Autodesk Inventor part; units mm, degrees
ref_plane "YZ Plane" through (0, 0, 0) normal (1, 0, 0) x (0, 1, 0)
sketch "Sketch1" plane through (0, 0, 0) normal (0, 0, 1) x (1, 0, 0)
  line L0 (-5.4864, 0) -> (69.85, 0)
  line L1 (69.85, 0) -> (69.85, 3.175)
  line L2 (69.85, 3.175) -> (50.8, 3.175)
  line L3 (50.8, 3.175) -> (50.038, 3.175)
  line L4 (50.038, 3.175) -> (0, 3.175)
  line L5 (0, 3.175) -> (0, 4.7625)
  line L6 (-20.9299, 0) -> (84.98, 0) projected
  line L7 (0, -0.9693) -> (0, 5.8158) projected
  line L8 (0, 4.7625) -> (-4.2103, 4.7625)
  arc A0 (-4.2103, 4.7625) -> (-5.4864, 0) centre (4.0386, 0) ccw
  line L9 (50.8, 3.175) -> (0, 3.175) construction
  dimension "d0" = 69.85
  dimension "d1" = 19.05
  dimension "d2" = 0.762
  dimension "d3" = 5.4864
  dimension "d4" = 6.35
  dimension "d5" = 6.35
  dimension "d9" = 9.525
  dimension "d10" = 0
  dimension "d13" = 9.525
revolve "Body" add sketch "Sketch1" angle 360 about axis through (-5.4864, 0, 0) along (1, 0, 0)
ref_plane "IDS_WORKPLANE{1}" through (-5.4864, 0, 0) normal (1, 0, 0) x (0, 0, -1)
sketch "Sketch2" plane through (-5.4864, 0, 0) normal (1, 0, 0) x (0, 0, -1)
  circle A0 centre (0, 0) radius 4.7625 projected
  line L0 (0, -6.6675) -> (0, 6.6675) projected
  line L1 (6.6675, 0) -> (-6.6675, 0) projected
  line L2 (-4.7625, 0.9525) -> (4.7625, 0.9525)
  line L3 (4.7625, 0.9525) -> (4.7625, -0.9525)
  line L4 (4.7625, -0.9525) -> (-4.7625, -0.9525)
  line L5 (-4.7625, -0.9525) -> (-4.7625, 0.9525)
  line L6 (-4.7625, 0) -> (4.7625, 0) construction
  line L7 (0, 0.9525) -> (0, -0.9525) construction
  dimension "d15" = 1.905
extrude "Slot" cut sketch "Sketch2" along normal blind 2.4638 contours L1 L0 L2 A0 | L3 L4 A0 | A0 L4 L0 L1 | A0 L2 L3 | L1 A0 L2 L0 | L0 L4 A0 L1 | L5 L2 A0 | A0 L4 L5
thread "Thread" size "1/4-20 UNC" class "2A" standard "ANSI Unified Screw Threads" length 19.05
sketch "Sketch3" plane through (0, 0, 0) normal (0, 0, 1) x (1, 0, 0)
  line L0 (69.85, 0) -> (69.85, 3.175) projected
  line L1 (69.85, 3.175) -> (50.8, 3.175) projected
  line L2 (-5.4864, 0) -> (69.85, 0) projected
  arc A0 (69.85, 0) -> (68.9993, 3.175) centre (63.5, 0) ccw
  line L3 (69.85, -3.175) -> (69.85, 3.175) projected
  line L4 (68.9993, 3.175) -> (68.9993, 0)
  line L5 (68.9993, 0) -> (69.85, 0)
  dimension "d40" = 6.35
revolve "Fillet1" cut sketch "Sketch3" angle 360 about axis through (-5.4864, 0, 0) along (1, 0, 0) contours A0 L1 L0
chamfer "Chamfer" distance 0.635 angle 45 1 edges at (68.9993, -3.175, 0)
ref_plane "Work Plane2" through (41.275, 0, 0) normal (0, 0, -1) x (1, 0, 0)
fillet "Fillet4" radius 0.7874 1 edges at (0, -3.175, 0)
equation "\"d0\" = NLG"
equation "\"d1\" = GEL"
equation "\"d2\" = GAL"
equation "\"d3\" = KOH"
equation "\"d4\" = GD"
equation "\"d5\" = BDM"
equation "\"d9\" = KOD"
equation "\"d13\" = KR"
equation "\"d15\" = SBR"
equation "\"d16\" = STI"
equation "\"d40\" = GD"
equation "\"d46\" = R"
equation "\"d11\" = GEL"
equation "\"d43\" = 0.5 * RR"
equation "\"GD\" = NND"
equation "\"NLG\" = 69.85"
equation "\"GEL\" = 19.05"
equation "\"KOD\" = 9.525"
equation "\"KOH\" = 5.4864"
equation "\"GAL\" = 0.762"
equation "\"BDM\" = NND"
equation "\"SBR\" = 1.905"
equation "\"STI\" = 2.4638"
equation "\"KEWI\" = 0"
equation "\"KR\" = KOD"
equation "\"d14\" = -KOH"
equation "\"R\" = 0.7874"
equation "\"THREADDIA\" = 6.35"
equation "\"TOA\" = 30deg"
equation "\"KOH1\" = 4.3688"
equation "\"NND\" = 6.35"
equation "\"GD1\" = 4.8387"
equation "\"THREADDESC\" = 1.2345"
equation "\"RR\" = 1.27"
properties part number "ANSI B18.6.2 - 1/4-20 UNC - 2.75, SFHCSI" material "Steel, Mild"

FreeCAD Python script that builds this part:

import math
import FreeCAD as App
import Part
import Sketcher
from FreeCAD import Vector
Q = App.Units.Quantity


def edges_at(feature, points):
    """Names of the edges that pass closest to the given points."""
    edges = feature.Shape.Edges
    near = lambda p: min(range(len(edges)), key=lambda i: edges[i].distToShape(Part.Vertex(*p))[0])
    return sorted({f"Edge{near(p) + 1}" for p in points})


def add_polygon(sketch, points):
    """Adds a closed chain of lines whose ends are joined by coincident constraints."""
    first, n = sketch.GeometryCount, len(points)
    for a, b in zip(points, points[1:] + points[:1]):
        sketch.addGeometry(Part.LineSegment(App.Vector(*a, 0), App.Vector(*b, 0)), False)
    for i in range(n):
        sketch.addConstraint(Sketcher.Constraint("Coincident", first + i, 2, first + (i + 1) % n, 1))

doc = App.newDocument("Part")
body = doc.addObject("PartDesign::Body", "Body")

# Sketch on XY plane
sketch1 = body.newObject("Sketcher::SketchObject", "Sketch")
sketch1.AttachmentSupport = (doc.getObject("XY_Plane"), [""])
sketch1.MapMode = "FlatFace"
sketch1.addGeometry([
    Part.ArcOfCircle(Part.Circle(Vector(4, 0, 0), Vector(0, 0, 1), 9.5), math.radians(150), math.radians(180)),  # 0
    Part.LineSegment(Vector(-5.5, 0, 0), Vector(69.8, 0, 0)),  # 1
    Part.LineSegment(Vector(69.8, 0, 0), Vector(69.8, 3.2, 0)),  # 2
    Part.LineSegment(Vector(69.8, 3.2, 0), Vector(0, 3.2, 0)),  # 3
    Part.LineSegment(Vector(0, 3.2, 0), Vector(0, 4.8, 0)),  # 4
    Part.LineSegment(Vector(0, 4.8, 0), Vector(-4.2, 4.8, 0)),  # 5
], False)
sketch1.addConstraint([
    Sketcher.Constraint("Coincident", 0, 2, 1, 1),
    Sketcher.Constraint("Coincident", 1, 2, 2, 1),
    Sketcher.Constraint("Coincident", 2, 2, 3, 1),
    Sketcher.Constraint("Coincident", 3, 2, 4, 1),
    Sketcher.Constraint("Coincident", 4, 2, 5, 1),
    Sketcher.Constraint("Coincident", 5, 2, 0, 1),
    Sketcher.Constraint("Horizontal", 1),
    Sketcher.Constraint("Vertical", 2),
    Sketcher.Constraint("Horizontal", 3),
    Sketcher.Constraint("Vertical", 4),
    Sketcher.Constraint("Horizontal", 5),
    Sketcher.Constraint("PointOnObject", 0, 3, -1),
    Sketcher.Constraint("PointOnObject", 0, 2, -1),
    Sketcher.Constraint("PointOnObject", 3, 2, -2),
    Sketcher.Constraint("Radius", 0, Q("0.375 in")),
    Sketcher.Constraint("DistanceX", 3, 2, 3, 1, Q("2.75 in")),
    Sketcher.Constraint("DistanceX", 0, 2, -1, 1, Q("0.216 in")),
    Sketcher.Constraint("DistanceY", 2, 1, 2, 2, Q("0.125 in")),
    Sketcher.Constraint("DistanceY", 4, 1, 4, 2, Q("0.0625 in")),
])
revolution = body.newObject("PartDesign::Revolution", "Revolution")
revolution.Profile = sketch1
revolution.ReferenceAxis = (sketch1, ["H_Axis"])
revolution.Angle = 360

# Sketch on YZ plane
sketch2 = body.newObject("Sketcher::SketchObject", "Sketch001")
sketch2.AttachmentSupport = (doc.getObject("YZ_Plane"), [""])
sketch2.MapMode = "FlatFace"
sketch2.AttachmentOffset = App.Placement(Vector(0, 0, -0.216 * 25.4), App.Rotation())
add_polygon(sketch2, [(1, 4.8), (-1, 4.8), (-1, -4.8), (1, -4.8)])  # lines 0-3
sketch2.addConstraint([
    Sketcher.Constraint("Horizontal", 0),
    Sketcher.Constraint("Vertical", 1),
    Sketcher.Constraint("Horizontal", 2),
    Sketcher.Constraint("Vertical", 3),
    Sketcher.Constraint("Symmetric", 0, 2, 2, 2, -1, 1),
    Sketcher.Constraint("DistanceX", 0, 2, 0, 1, Q("0.075 in")),
    Sketcher.Constraint("DistanceY", 1, 2, 1, 1, Q("0.375 in")),
])
pocket1 = body.newObject("PartDesign::Pocket", "Pocket")
pocket1.Profile = sketch2
pocket1.Length = Q("0.097 in")
pocket1.Reversed = True

# Sketch on XY plane
sketch3 = body.newObject("Sketcher::SketchObject", "Sketch002")
sketch3.AttachmentSupport = (doc.getObject("XY_Plane"), [""])
sketch3.MapMode = "FlatFace"
sketch3.addGeometry([
    Part.ArcOfCircle(Part.Circle(Vector(63.5, 0, 0), Vector(0, 0, 1), 6.3), math.radians(0), math.radians(30)),
    Part.LineSegment(Vector(69.8, 0, 0), Vector(69.8, 3.2, 0)),
    Part.LineSegment(Vector(69.8, 3.2, 0), Vector(69, 3.2, 0)),
], False)
sketch3.addConstraint([
    Sketcher.Constraint("Tangent", 0, 1, 1, 1),
    Sketcher.Constraint("Coincident", 1, 2, 2, 1),
    Sketcher.Constraint("Coincident", 2, 2, 0, 2),
    Sketcher.Constraint("Vertical", 1),
    Sketcher.Constraint("Horizontal", 2),
    Sketcher.Constraint("PointOnObject", 0, 3, -1),
    Sketcher.Constraint("Radius", 0, Q("0.25 in")),
    Sketcher.Constraint("DistanceX", -1, 1, 0, 3, Q("2.5 in")),
    Sketcher.Constraint("DistanceY", 1, 1, 1, 2, Q("0.125 in")),
])
groove = body.newObject("PartDesign::Groove", "Groove")
groove.Profile = sketch3
groove.ReferenceAxis = (sketch3, ["H_Axis"])
groove.Angle = 360
doc.recompute()

chamfer = body.newObject("PartDesign::Chamfer", "Chamfer")
chamfer.Base = (groove, edges_at(groove, [(68.999, -3.175, 0)]))
chamfer.Size = Q("0.025 in")
doc.recompute()

fillet = body.newObject("PartDesign::Fillet", "Fillet")
fillet.Base = (chamfer, edges_at(chamfer, [(0, -3.175, 0)]))
fillet.Radius = Q("0.031 in")

doc.recompute()
